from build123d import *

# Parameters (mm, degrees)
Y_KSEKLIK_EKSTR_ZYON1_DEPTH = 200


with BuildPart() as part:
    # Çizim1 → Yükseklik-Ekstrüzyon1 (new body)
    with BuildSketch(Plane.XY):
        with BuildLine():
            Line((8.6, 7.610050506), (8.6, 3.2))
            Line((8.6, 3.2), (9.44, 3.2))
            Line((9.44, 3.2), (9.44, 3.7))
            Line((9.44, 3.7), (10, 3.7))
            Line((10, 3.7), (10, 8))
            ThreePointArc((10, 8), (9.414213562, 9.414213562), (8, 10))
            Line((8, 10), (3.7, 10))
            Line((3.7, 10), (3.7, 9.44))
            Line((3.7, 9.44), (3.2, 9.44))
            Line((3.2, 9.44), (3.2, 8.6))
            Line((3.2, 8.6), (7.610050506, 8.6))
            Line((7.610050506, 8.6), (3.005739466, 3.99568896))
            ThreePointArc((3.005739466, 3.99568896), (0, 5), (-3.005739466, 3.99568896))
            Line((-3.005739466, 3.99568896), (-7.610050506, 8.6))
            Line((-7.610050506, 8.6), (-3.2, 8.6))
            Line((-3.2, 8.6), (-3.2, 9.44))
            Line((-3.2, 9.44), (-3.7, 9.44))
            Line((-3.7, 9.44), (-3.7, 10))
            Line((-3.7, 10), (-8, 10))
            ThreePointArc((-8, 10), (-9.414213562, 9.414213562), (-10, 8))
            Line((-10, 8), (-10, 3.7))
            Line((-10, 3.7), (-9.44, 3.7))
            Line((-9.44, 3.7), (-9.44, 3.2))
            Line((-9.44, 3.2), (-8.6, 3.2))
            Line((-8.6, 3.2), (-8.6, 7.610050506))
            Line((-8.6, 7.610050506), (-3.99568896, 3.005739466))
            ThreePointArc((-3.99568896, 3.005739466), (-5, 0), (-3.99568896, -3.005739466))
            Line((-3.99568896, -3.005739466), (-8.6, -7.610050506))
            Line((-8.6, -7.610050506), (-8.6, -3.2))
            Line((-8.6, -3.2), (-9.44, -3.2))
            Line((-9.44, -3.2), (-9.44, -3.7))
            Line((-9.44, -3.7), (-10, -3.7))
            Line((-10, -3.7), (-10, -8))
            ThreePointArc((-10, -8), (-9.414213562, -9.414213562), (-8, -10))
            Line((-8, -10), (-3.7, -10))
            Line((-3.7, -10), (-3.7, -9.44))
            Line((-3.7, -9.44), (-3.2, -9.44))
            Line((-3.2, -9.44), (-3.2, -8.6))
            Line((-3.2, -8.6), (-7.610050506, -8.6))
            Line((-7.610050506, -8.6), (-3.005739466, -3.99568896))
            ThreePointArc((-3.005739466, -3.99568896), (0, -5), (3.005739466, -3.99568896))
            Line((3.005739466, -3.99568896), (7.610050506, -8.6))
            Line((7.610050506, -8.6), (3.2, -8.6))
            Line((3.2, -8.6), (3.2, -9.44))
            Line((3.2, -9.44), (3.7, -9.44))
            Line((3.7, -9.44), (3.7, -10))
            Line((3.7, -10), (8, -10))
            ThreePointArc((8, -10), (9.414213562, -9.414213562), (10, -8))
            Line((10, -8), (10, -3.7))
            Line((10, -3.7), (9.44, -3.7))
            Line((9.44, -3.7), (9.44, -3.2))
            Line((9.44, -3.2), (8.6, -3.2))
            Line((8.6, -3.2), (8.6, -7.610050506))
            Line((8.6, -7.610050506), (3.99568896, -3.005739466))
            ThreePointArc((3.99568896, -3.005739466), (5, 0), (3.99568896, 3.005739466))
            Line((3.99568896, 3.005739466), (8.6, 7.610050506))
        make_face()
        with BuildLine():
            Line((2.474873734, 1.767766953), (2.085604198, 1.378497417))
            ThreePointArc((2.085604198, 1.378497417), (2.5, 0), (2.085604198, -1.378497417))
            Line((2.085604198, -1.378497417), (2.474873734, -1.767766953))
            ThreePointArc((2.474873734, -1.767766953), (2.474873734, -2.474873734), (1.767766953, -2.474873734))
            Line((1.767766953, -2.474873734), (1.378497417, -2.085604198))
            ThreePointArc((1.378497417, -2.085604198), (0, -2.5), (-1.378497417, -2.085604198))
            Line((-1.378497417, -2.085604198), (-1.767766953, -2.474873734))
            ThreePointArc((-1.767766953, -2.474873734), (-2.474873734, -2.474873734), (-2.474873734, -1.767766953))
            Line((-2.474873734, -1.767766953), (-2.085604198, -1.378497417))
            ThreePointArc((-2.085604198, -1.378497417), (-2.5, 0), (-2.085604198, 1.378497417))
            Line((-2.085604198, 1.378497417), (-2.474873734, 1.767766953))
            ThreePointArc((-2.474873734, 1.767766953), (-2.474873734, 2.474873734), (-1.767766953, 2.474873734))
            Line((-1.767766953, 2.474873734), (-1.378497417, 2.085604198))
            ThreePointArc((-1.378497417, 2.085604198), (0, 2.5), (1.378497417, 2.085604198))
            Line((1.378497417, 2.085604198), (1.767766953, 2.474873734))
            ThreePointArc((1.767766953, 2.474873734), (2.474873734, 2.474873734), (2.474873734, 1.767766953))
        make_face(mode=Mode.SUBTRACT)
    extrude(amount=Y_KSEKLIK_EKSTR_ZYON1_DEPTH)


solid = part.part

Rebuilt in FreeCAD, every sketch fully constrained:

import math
import FreeCAD as App
import Part
import Sketcher

V = App.Vector

doc = App.newDocument("Part")
body = doc.addObject("PartDesign::Body", "Body")

# Sketch on XY plane
sketch1 = body.newObject("Sketcher::SketchObject", "Sketch")
sketch1.AttachmentSupport = (doc.getObject("XY_Plane"), [""])
sketch1.MapMode = "FlatFace"
sketch1.addGeometry(Part.LineSegment(V(8.6, 7.6, 0), V(8.6, 3.2, 0)), False)
sketch1.addGeometry(Part.LineSegment(V(8.6, 3.2, 0), V(9.4, 3.2, 0)), False)
sketch1.addGeometry(Part.LineSegment(V(9.4, 3.2, 0), V(9.4, 3.7, 0)), False)
sketch1.addGeometry(Part.LineSegment(V(9.4, 3.7, 0), V(10, 3.7, 0)), False)
sketch1.addGeometry(Part.LineSegment(V(10, 3.7, 0), V(10, 8, 0)), False)
sketch1.addGeometry(Part.ArcOfCircle(Part.Circle(V(8, 8, 0), V(0, 0, 1), 2), math.radians(0), math.radians(90)), False)
sketch1.addGeometry(Part.LineSegment(V(8, 10, 0), V(3.7, 10, 0)), False)
sketch1.addGeometry(Part.LineSegment(V(3.7, 10, 0), V(3.7, 9.4, 0)), False)
sketch1.addGeometry(Part.LineSegment(V(3.7, 9.4, 0), V(3.2, 9.4, 0)), False)
sketch1.addGeometry(Part.LineSegment(V(3.2, 9.4, 0), V(3.2, 8.6, 0)), False)
sketch1.addGeometry(Part.LineSegment(V(3.2, 8.6, 0), V(7.6, 8.6, 0)), False)
sketch1.addGeometry(Part.LineSegment(V(7.6, 8.6, 0), V(3, 4, 0)), False)
sketch1.addGeometry(Part.ArcOfCircle(Part.Circle(V(0, 0, 0), V(0, 0, 1), 5), math.radians(53), math.radians(127)), False)
sketch1.addGeometry(Part.LineSegment(V(-3, 4, 0), V(-7.6, 8.6, 0)), False)
sketch1.addGeometry(Part.LineSegment(V(-7.6, 8.6, 0), V(-3.2, 8.6, 0)), False)
sketch1.addGeometry(Part.LineSegment(V(-3.2, 8.6, 0), V(-3.2, 9.4, 0)), False)
sketch1.addGeometry(Part.LineSegment(V(-3.2, 9.4, 0), V(-3.7, 9.4, 0)), False)
sketch1.addGeometry(Part.LineSegment(V(-3.7, 9.4, 0), V(-3.7, 10, 0)), False)
sketch1.addGeometry(Part.LineSegment(V(-3.7, 10, 0), V(-8, 10, 0)), False)
sketch1.addGeometry(Part.ArcOfCircle(Part.Circle(V(-8, 8, 0), V(0, 0, 1), 2), math.radians(90), math.radians(180)), False)
sketch1.addGeometry(Part.LineSegment(V(-10, 8, 0), V(-10, 3.7, 0)), False)
sketch1.addGeometry(Part.LineSegment(V(-10, 3.7, 0), V(-9.4, 3.7, 0)), False)
sketch1.addGeometry(Part.LineSegment(V(-9.4, 3.7, 0), V(-9.4, 3.2, 0)), False)
sketch1.addGeometry(Part.LineSegment(V(-9.4, 3.2, 0), V(-8.6, 3.2, 0)), False)
sketch1.addGeometry(Part.LineSegment(V(-8.6, 3.2, 0), V(-8.6, 7.6, 0)), False)
sketch1.addGeometry(Part.LineSegment(V(-8.6, 7.6, 0), V(-4, 3, 0)), False)
sketch1.addGeometry(Part.ArcOfCircle(Part.Circle(V(0, 0, 0), V(0, 0, 1), 5), math.radians(143), math.radians(217)), False)
sketch1.addGeometry(Part.LineSegment(V(-4, -3, 0), V(-8.6, -7.6, 0)), False)
sketch1.addGeometry(Part.LineSegment(V(-8.6, -7.6, 0), V(-8.6, -3.2, 0)), False)
sketch1.addGeometry(Part.LineSegment(V(-8.6, -3.2, 0), V(-9.4, -3.2, 0)), False)
sketch1.addGeometry(Part.LineSegment(V(-9.4, -3.2, 0), V(-9.4, -3.7, 0)), False)
sketch1.addGeometry(Part.LineSegment(V(-9.4, -3.7, 0), V(-10, -3.7, 0)), False)
sketch1.addGeometry(Part.LineSegment(V(-10, -3.7, 0), V(-10, -8, 0)), False)
sketch1.addGeometry(Part.ArcOfCircle(Part.Circle(V(-8, -8, 0), V(0, 0, 1), 2), math.radians(-180), math.radians(-90)), False)
sketch1.addGeometry(Part.LineSegment(V(-8, -10, 0), V(-3.7, -10, 0)), False)
sketch1.addGeometry(Part.LineSegment(V(-3.7, -10, 0), V(-3.7, -9.4, 0)), False)
sketch1.addGeometry(Part.LineSegment(V(-3.7, -9.4, 0), V(-3.2, -9.4, 0)), False)
sketch1.addGeometry(Part.LineSegment(V(-3.2, -9.4, 0), V(-3.2, -8.6, 0)), False)
sketch1.addGeometry(Part.LineSegment(V(-3.2, -8.6, 0), V(-7.6, -8.6, 0)), False)
sketch1.addGeometry(Part.LineSegment(V(-7.6, -8.6, 0), V(-3, -4, 0)), False)
sketch1.addGeometry(Part.ArcOfCircle(Part.Circle(V(0, 0, 0), V(0, 0, 1), 5), math.radians(-127), math.radians(-53)), False)
sketch1.addGeometry(Part.LineSegment(V(3, -4, 0), V(7.6, -8.6, 0)), False)
sketch1.addGeometry(Part.LineSegment(V(7.6, -8.6, 0), V(3.2, -8.6, 0)), False)
sketch1.addGeometry(Part.LineSegment(V(3.2, -8.6, 0), V(3.2, -9.4, 0)), False)
sketch1.addGeometry(Part.LineSegment(V(3.2, -9.4, 0), V(3.7, -9.4, 0)), False)
sketch1.addGeometry(Part.LineSegment(V(3.7, -9.4, 0), V(3.7, -10, 0)), False)
sketch1.addGeometry(Part.LineSegment(V(3.7, -10, 0), V(8, -10, 0)), False)
sketch1.addGeometry(Part.ArcOfCircle(Part.Circle(V(8, -8, 0), V(0, 0, 1), 2), math.radians(-90), math.radians(0)), False)
sketch1.addGeometry(Part.LineSegment(V(10, -8, 0), V(10, -3.7, 0)), False)
sketch1.addGeometry(Part.LineSegment(V(10, -3.7, 0), V(9.4, -3.7, 0)), False)
sketch1.addGeometry(Part.LineSegment(V(9.4, -3.7, 0), V(9.4, -3.2, 0)), False)
sketch1.addGeometry(Part.LineSegment(V(9.4, -3.2, 0), V(8.6, -3.2, 0)), False)
sketch1.addGeometry(Part.LineSegment(V(8.6, -3.2, 0), V(8.6, -7.6, 0)), False)
sketch1.addGeometry(Part.LineSegment(V(8.6, -7.6, 0), V(4, -3, 0)), False)
sketch1.addGeometry(Part.ArcOfCircle(Part.Circle(V(0, 0, 0), V(0, 0, 1), 5), math.radians(-37), math.radians(37)), False)
sketch1.addGeometry(Part.LineSegment(V(4, 3, 0), V(8.6, 7.6, 0)), False)
sketch1.addGeometry(Part.ArcOfCircle(Part.Circle(V(2.1, 2.1, 0), V(0, 0, 1), 0.5), math.radians(-45), math.radians(135)), False)
sketch1.addGeometry(Part.LineSegment(V(2.5, 1.8, 0), V(2.1, 1.4, 0)), False)
sketch1.addGeometry(Part.ArcOfCircle(Part.Circle(V(0, 0, 0), V(0, 0, 1), 2.5), math.radians(-33), math.radians(33)), False)
sketch1.addGeometry(Part.LineSegment(V(2.1, -1.4, 0), V(2.5, -1.8, 0)), False)
sketch1.addGeometry(Part.ArcOfCircle(Part.Circle(V(2.1, -2.1, 0), V(0, 0, 1), 0.5), math.radians(-135), math.radians(45)), False)
sketch1.addGeometry(Part.LineSegment(V(1.8, -2.5, 0), V(1.4, -2.1, 0)), False)
sketch1.addGeometry(Part.ArcOfCircle(Part.Circle(V(0, 0, 0), V(0, 0, 1), 2.5), math.radians(-123), math.radians(-57)), False)
sketch1.addGeometry(Part.LineSegment(V(-1.4, -2.1, 0), V(-1.8, -2.5, 0)), False)
sketch1.addGeometry(Part.ArcOfCircle(Part.Circle(V(-2.1, -2.1, 0), V(0, 0, 1), 0.5), math.radians(135), math.radians(315)), False)
sketch1.addGeometry(Part.LineSegment(V(-2.5, -1.8, 0), V(-2.1, -1.4, 0)), False)
sketch1.addGeometry(Part.ArcOfCircle(Part.Circle(V(0, 0, 0), V(0, 0, 1), 2.5), math.radians(147), math.radians(213)), False)
sketch1.addGeometry(Part.LineSegment(V(-2.1, 1.4, 0), V(-2.5, 1.8, 0)), False)
sketch1.addGeometry(Part.ArcOfCircle(Part.Circle(V(-2.1, 2.1, 0), V(0, 0, 1), 0.5), math.radians(45), math.radians(225)), False)
sketch1.addGeometry(Part.LineSegment(V(-1.8, 2.5, 0), V(-1.4, 2.1, 0)), False)
sketch1.addGeometry(Part.ArcOfCircle(Part.Circle(V(0, 0, 0), V(0, 0, 1), 2.5), math.radians(57), math.radians(123)), False)
sketch1.addGeometry(Part.LineSegment(V(1.4, 2.1, 0), V(1.8, 2.5, 0)), False)
sketch1.addConstraint(Sketcher.Constraint("Coincident", 0, 2, 1, 1))
sketch1.addConstraint(Sketcher.Constraint("Coincident", 1, 2, 2, 1))
sketch1.addConstraint(Sketcher.Constraint("Coincident", 2, 2, 3, 1))
sketch1.addConstraint(Sketcher.Constraint("Coincident", 3, 2, 4, 1))
sketch1.addConstraint(Sketcher.Constraint("Tangent", 4, 2, 5, 1))
sketch1.addConstraint(Sketcher.Constraint("Tangent", 5, 2, 6, 1))
sketch1.addConstraint(Sketcher.Constraint("Coincident", 6, 2, 7, 1))
sketch1.addConstraint(Sketcher.Constraint("Coincident", 7, 2, 8, 1))
sketch1.addConstraint(Sketcher.Constraint("Coincident", 8, 2, 9, 1))
sketch1.addConstraint(Sketcher.Constraint("Coincident", 9, 2, 10, 1))
sketch1.addConstraint(Sketcher.Constraint("Coincident", 10, 2, 11, 1))
sketch1.addConstraint(Sketcher.Constraint("Coincident", 11, 2, 12, 1))
sketch1.addConstraint(Sketcher.Constraint("Coincident", 12, 2, 13, 1))
sketch1.addConstraint(Sketcher.Constraint("Coincident", 13, 2, 14, 1))
sketch1.addConstraint(Sketcher.Constraint("Coincident", 14, 2, 15, 1))
sketch1.addConstraint(Sketcher.Constraint("Coincident", 15, 2, 16, 1))
sketch1.addConstraint(Sketcher.Constraint("Coincident", 16, 2, 17, 1))
sketch1.addConstraint(Sketcher.Constraint("Coincident", 17, 2, 18, 1))
sketch1.addConstraint(Sketcher.Constraint("Tangent", 18, 2, 19, 1))
sketch1.addConstraint(Sketcher.Constraint("Tangent", 19, 2, 20, 1))
sketch1.addConstraint(Sketcher.Constraint("Coincident", 20, 2, 21, 1))
sketch1.addConstraint(Sketcher.Constraint("Coincident", 21, 2, 22, 1))
sketch1.addConstraint(Sketcher.Constraint("Coincident", 22, 2, 23, 1))
sketch1.addConstraint(Sketcher.Constraint("Coincident", 23, 2, 24, 1))
sketch1.addConstraint(Sketcher.Constraint("Coincident", 24, 2, 25, 1))
sketch1.addConstraint(Sketcher.Constraint("Coincident", 25, 2, 26, 1))
sketch1.addConstraint(Sketcher.Constraint("Coincident", 26, 2, 27, 1))
sketch1.addConstraint(Sketcher.Constraint("Coincident", 27, 2, 28, 1))
sketch1.addConstraint(Sketcher.Constraint("Coincident", 28, 2, 29, 1))
sketch1.addConstraint(Sketcher.Constraint("Coincident", 29, 2, 30, 1))
sketch1.addConstraint(Sketcher.Constraint("Coincident", 30, 2, 31, 1))
sketch1.addConstraint(Sketcher.Constraint("Coincident", 31, 2, 32, 1))
sketch1.addConstraint(Sketcher.Constraint("Tangent", 32, 2, 33, 1))
sketch1.addConstraint(Sketcher.Constraint("Tangent", 33, 2, 34, 1))
sketch1.addConstraint(Sketcher.Constraint("Coincident", 34, 2, 35, 1))
sketch1.addConstraint(Sketcher.Constraint("Coincident", 35, 2, 36, 1))
sketch1.addConstraint(Sketcher.Constraint("Coincident", 36, 2, 37, 1))
sketch1.addConstraint(Sketcher.Constraint("Coincident", 37, 2, 38, 1))
sketch1.addConstraint(Sketcher.Constraint("Coincident", 38, 2, 39, 1))
sketch1.addConstraint(Sketcher.Constraint("Coincident", 39, 2, 40, 1))
sketch1.addConstraint(Sketcher.Constraint("Coincident", 40, 2, 41, 1))
sketch1.addConstraint(Sketcher.Constraint("Coincident", 41, 2, 42, 1))
sketch1.addConstraint(Sketcher.Constraint("Coincident", 42, 2, 43, 1))
sketch1.addConstraint(Sketcher.Constraint("Coincident", 43, 2, 44, 1))
sketch1.addConstraint(Sketcher.Constraint("Coincident", 44, 2, 45, 1))
sketch1.addConstraint(Sketcher.Constraint("Coincident", 45, 2, 46, 1))
sketch1.addConstraint(Sketcher.Constraint("Tangent", 46, 2, 47, 1))
sketch1.addConstraint(Sketcher.Constraint("Tangent", 47, 2, 48, 1))
sketch1.addConstraint(Sketcher.Constraint("Coincident", 48, 2, 49, 1))
sketch1.addConstraint(Sketcher.Constraint("Coincident", 49, 2, 50, 1))
sketch1.addConstraint(Sketcher.Constraint("Coincident", 50, 2, 51, 1))
sketch1.addConstraint(Sketcher.Constraint("Coincident", 51, 2, 52, 1))
sketch1.addConstraint(Sketcher.Constraint("Coincident", 52, 2, 53, 1))
sketch1.addConstraint(Sketcher.Constraint("Coincident", 53, 2, 54, 1))
sketch1.addConstraint(Sketcher.Constraint("Coincident", 54, 2, 55, 1))
sketch1.addConstraint(Sketcher.Constraint("Coincident", 55, 2, 0, 1))
sketch1.addConstraint(Sketcher.Constraint("Tangent", 56, 1, 57, 1))
sketch1.addConstraint(Sketcher.Constraint("Coincident", 57, 2, 58, 2))
sketch1.addConstraint(Sketcher.Constraint("Coincident", 58, 1, 59, 1))
sketch1.addConstraint(Sketcher.Constraint("Tangent", 59, 2, 60, 2))
sketch1.addConstraint(Sketcher.Constraint("Tangent", 60, 1, 61, 1))
sketch1.addConstraint(Sketcher.Constraint("Coincident", 61, 2, 62, 2))
sketch1.addConstraint(Sketcher.Constraint("Coincident", 62, 1, 63, 1))
sketch1.addConstraint(Sketcher.Constraint("Tangent", 63, 2, 64, 2))
sketch1.addConstraint(Sketcher.Constraint("Tangent", 64, 1, 65, 1))
sketch1.addConstraint(Sketcher.Constraint("Coincident", 65, 2, 66, 2))
sketch1.addConstraint(Sketcher.Constraint("Coincident", 66, 1, 67, 1))
sketch1.addConstraint(Sketcher.Constraint("Tangent", 67, 2, 68, 2))
sketch1.addConstraint(Sketcher.Constraint("Tangent", 68, 1, 69, 1))
sketch1.addConstraint(Sketcher.Constraint("Coincident", 69, 2, 70, 2))
sketch1.addConstraint(Sketcher.Constraint("Coincident", 70, 1, 71, 1))
sketch1.addConstraint(Sketcher.Constraint("Tangent", 71, 2, 56, 2))
sketch1.addConstraint(Sketcher.Constraint("Vertical", 0))
sketch1.addConstraint(Sketcher.Constraint("Horizontal", 1))
sketch1.addConstraint(Sketcher.Constraint("Vertical", 2))
sketch1.addConstraint(Sketcher.Constraint("Horizontal", 3))
sketch1.addConstraint(Sketcher.Constraint("Vertical", 4))
sketch1.addConstraint(Sketcher.Constraint("Horizontal", 6))
sketch1.addConstraint(Sketcher.Constraint("Vertical", 7))
sketch1.addConstraint(Sketcher.Constraint("Horizontal", 8))
sketch1.addConstraint(Sketcher.Constraint("Vertical", 9))
sketch1.addConstraint(Sketcher.Constraint("Horizontal", 10))
sketch1.addConstraint(Sketcher.Constraint("Horizontal", 14))
sketch1.addConstraint(Sketcher.Constraint("Vertical", 15))
sketch1.addConstraint(Sketcher.Constraint("Horizontal", 16))
sketch1.addConstraint(Sketcher.Constraint("Vertical", 17))
sketch1.addConstraint(Sketcher.Constraint("Horizontal", 18))
sketch1.addConstraint(Sketcher.Constraint("Vertical", 20))
sketch1.addConstraint(Sketcher.Constraint("Horizontal", 21))
sketch1.addConstraint(Sketcher.Constraint("Vertical", 22))
sketch1.addConstraint(Sketcher.Constraint("Horizontal", 23))
sketch1.addConstraint(Sketcher.Constraint("Vertical", 24))
sketch1.addConstraint(Sketcher.Constraint("Vertical", 28))
sketch1.addConstraint(Sketcher.Constraint("Horizontal", 29))
sketch1.addConstraint(Sketcher.Constraint("Vertical", 30))
sketch1.addConstraint(Sketcher.Constraint("Horizontal", 31))
sketch1.addConstraint(Sketcher.Constraint("Vertical", 32))
sketch1.addConstraint(Sketcher.Constraint("Horizontal", 34))
sketch1.addConstraint(Sketcher.Constraint("Vertical", 35))
sketch1.addConstraint(Sketcher.Constraint("Horizontal", 36))
sketch1.addConstraint(Sketcher.Constraint("Vertical", 37))
sketch1.addConstraint(Sketcher.Constraint("Horizontal", 38))
sketch1.addConstraint(Sketcher.Constraint("Horizontal", 42))
sketch1.addConstraint(Sketcher.Constraint("Vertical", 43))
sketch1.addConstraint(Sketcher.Constraint("Horizontal", 44))
sketch1.addConstraint(Sketcher.Constraint("Vertical", 45))
sketch1.addConstraint(Sketcher.Constraint("Horizontal", 46))
sketch1.addConstraint(Sketcher.Constraint("Vertical", 48))
sketch1.addConstraint(Sketcher.Constraint("Horizontal", 49))
sketch1.addConstraint(Sketcher.Constraint("Vertical", 50))
sketch1.addConstraint(Sketcher.Constraint("Horizontal", 51))
sketch1.addConstraint(Sketcher.Constraint("Vertical", 52))
sketch1.addConstraint(Sketcher.Constraint("Coincident", 12, 3, -1, 1))
sketch1.addConstraint(Sketcher.Constraint("Coincident", 26, 3, -1, 1))
sketch1.addConstraint(Sketcher.Constraint("Coincident", 40, 3, -1, 1))
sketch1.addConstraint(Sketcher.Constraint("Coincident", 54, 3, -1, 1))
sketch1.addConstraint(Sketcher.Constraint("Coincident", 58, 3, -1, 1))
sketch1.addConstraint(Sketcher.Constraint("Coincident", 62, 3, -1, 1))
sketch1.addConstraint(Sketcher.Constraint("Coincident", 66, 3, -1, 1))
sketch1.addConstraint(Sketcher.Constraint("Coincident", 70, 3, -1, 1))
sketch1.addConstraint(Sketcher.Constraint("Equal", 5, 19))
sketch1.addConstraint(Sketcher.Constraint("Equal", 12, 26))
sketch1.addConstraint(Sketcher.Constraint("Equal", 19, 33))
sketch1.addConstraint(Sketcher.Constraint("Equal", 26, 40))
sketch1.addConstraint(Sketcher.Constraint("Equal", 33, 47))
sketch1.addConstraint(Sketcher.Constraint("Equal", 40, 54))
sketch1.addConstraint(Sketcher.Constraint("Equal", 56, 60))
sketch1.addConstraint(Sketcher.Constraint("Equal", 58, 62))
sketch1.addConstraint(Sketcher.Constraint("Equal", 60, 64))
sketch1.addConstraint(Sketcher.Constraint("Equal", 62, 66))
sketch1.addConstraint(Sketcher.Constraint("Equal", 64, 68))
sketch1.addConstraint(Sketcher.Constraint("Equal", 66, 70))
sketch1.addConstraint(Sketcher.Constraint("Symmetric", 5, 3, 33, 3, -1, 1))
sketch1.addConstraint(Sketcher.Constraint("Symmetric", 19, 3, 47, 3, -1, 1))
sketch1.addConstraint(Sketcher.Constraint("Symmetric", 56, 3, 64, 3, -1, 1))
sketch1.addConstraint(Sketcher.Constraint("Symmetric", 60, 3, 68, 3, -1, 1))
sketch1.addConstraint(Sketcher.Constraint("Symmetric", 0, 2, 28, 2, -1, 1))
sketch1.addConstraint(Sketcher.Constraint("Symmetric", 2, 2, 30, 2, -1, 1))
sketch1.addConstraint(Sketcher.Constraint("Symmetric", 7, 2, 35, 2, -1, 1))
sketch1.addConstraint(Sketcher.Constraint("Symmetric", 9, 2, 37, 2, -1, 1))
sketch1.addConstraint(Sketcher.Constraint("Symmetric", 13, 2, 41, 2, -1, 1))
sketch1.addConstraint(Sketcher.Constraint("Symmetric", 15, 2, 43, 2, -1, 1))
sketch1.addConstraint(Sketcher.Constraint("Symmetric", 21, 2, 49, 2, -1, 1))
sketch1.addConstraint(Sketcher.Constraint("Symmetric", 23, 2, 51, 2, -1, 1))
sketch1.addConstraint(Sketcher.Constraint("Symmetric", 5, 3, 19, 3, -2))
sketch1.addConstraint(Sketcher.Constraint("Symmetric", 60, 3, 64, 3, -2))
sketch1.addConstraint(Sketcher.Constraint("Symmetric", 10, 2, 13, 2, -2))
sketch1.addConstraint(Sketcher.Constraint("Symmetric", 8, 2, 15, 2, -2))
sketch1.addConstraint(Sketcher.Constraint("Symmetric", 2, 2, 21, 2, -2))
sketch1.addConstraint(Sketcher.Constraint("Symmetric", 0, 2, 23, 2, -2))
sketch1.addConstraint(Sketcher.Constraint("Perpendicular", 11, 13))
sketch1.addConstraint(Sketcher.Constraint("Parallel", 13, 25))
sketch1.addConstraint(Sketcher.Constraint("Perpendicular", 25, 27))
sketch1.addConstraint(Sketcher.Constraint("Parallel", 27, 39))
sketch1.addConstraint(Sketcher.Constraint("Perpendicular", 39, 41))
sketch1.addConstraint(Sketcher.Constraint("Parallel", 41, 53))
sketch1.addConstraint(Sketcher.Constraint("Perpendicular", 53, 55))
sketch1.addConstraint(Sketcher.Constraint("Parallel", 55, 57))
sketch1.addConstraint(Sketcher.Constraint("Perpendicular", 57, 59))
sketch1.addConstraint(Sketcher.Constraint("Parallel", 59, 61))
sketch1.addConstraint(Sketcher.Constraint("Perpendicular", 61, 63))
sketch1.addConstraint(Sketcher.Constraint("Parallel", 63, 65))
sketch1.addConstraint(Sketcher.Constraint("Perpendicular", 65, 67))
sketch1.addConstraint(Sketcher.Constraint("Parallel", 67, 69))
sketch1.addConstraint(Sketcher.Constraint("Perpendicular", 69, 71))
sketch1.addConstraint(Sketcher.Constraint("Horizontal", 11, 2, 12, 2))
sketch1.addConstraint(Sketcher.Constraint("Horizontal", 39, 2, 40, 2))
sketch1.addConstraint(Sketcher.Constraint("Horizontal", 27, 2, 52, 2))
sketch1.addConstraint(Sketcher.Constraint("Horizontal", 25, 2, 54, 2))
sketch1.addConstraint(Sketcher.Constraint("Vertical", 25, 2, 26, 2))
sketch1.addConstraint(Sketcher.Constraint("Vertical", 17, 2, 34, 2))
sketch1.addConstraint(Sketcher.Constraint("Vertical", 7, 2, 44, 2))
sketch1.addConstraint(Sketcher.Constraint("Equal", 42, 0))
sketch1.addConstraint(Sketcher.Constraint("Equal", 44, 2))
sketch1.addConstraint(Sketcher.Constraint("Equal", 46, 4))
sketch1.addConstraint(Sketcher.Constraint("Equal", 49, 7))
sketch1.addConstraint(Sketcher.Constraint("Equal", 51, 9))
sketch1.addConstraint(Sketcher.Constraint("Equal", 13, 25))
sketch1.addConstraint(Sketcher.Constraint("Equal", 59, 61))
sketch1.addConstraint(Sketcher.Constraint("Radius", 5, 2.0))
sketch1.addConstraint(Sketcher.Constraint("Radius", 12, 5.0))
sketch1.addConstraint(Sketcher.Constraint("Radius", 56, 0.5))
sketch1.addConstraint(Sketcher.Constraint("Radius", 58, 2.5))
sketch1.addConstraint(Sketcher.Constraint("DistanceX", 6, 2, 6, 1, 4.3))
sketch1.addConstraint(Sketcher.Constraint("DistanceX", 8, 2, 8, 1, 0.5))
sketch1.addConstraint(Sketcher.Constraint("DistanceX", -1, 1, 5, 3, 8.0))
sketch1.addConstraint(Sketcher.Constraint("DistanceX", 1, 1, 1, 2, 0.84))
sketch1.addConstraint(Sketcher.Constraint("DistanceX", 3, 1, 3, 2, 0.56))
sketch1.addConstraint(Sketcher.Constraint("DistanceX", 10, 1, 10, 2, 4.410051))
sketch1.addConstraint(Sketcher.Constraint("Distance", 57, 0.55051))
pad1 = body.newObject("PartDesign::Pad", "Pad")
pad1.Profile = sketch1
pad1.Length = 200

doc.recompute()
